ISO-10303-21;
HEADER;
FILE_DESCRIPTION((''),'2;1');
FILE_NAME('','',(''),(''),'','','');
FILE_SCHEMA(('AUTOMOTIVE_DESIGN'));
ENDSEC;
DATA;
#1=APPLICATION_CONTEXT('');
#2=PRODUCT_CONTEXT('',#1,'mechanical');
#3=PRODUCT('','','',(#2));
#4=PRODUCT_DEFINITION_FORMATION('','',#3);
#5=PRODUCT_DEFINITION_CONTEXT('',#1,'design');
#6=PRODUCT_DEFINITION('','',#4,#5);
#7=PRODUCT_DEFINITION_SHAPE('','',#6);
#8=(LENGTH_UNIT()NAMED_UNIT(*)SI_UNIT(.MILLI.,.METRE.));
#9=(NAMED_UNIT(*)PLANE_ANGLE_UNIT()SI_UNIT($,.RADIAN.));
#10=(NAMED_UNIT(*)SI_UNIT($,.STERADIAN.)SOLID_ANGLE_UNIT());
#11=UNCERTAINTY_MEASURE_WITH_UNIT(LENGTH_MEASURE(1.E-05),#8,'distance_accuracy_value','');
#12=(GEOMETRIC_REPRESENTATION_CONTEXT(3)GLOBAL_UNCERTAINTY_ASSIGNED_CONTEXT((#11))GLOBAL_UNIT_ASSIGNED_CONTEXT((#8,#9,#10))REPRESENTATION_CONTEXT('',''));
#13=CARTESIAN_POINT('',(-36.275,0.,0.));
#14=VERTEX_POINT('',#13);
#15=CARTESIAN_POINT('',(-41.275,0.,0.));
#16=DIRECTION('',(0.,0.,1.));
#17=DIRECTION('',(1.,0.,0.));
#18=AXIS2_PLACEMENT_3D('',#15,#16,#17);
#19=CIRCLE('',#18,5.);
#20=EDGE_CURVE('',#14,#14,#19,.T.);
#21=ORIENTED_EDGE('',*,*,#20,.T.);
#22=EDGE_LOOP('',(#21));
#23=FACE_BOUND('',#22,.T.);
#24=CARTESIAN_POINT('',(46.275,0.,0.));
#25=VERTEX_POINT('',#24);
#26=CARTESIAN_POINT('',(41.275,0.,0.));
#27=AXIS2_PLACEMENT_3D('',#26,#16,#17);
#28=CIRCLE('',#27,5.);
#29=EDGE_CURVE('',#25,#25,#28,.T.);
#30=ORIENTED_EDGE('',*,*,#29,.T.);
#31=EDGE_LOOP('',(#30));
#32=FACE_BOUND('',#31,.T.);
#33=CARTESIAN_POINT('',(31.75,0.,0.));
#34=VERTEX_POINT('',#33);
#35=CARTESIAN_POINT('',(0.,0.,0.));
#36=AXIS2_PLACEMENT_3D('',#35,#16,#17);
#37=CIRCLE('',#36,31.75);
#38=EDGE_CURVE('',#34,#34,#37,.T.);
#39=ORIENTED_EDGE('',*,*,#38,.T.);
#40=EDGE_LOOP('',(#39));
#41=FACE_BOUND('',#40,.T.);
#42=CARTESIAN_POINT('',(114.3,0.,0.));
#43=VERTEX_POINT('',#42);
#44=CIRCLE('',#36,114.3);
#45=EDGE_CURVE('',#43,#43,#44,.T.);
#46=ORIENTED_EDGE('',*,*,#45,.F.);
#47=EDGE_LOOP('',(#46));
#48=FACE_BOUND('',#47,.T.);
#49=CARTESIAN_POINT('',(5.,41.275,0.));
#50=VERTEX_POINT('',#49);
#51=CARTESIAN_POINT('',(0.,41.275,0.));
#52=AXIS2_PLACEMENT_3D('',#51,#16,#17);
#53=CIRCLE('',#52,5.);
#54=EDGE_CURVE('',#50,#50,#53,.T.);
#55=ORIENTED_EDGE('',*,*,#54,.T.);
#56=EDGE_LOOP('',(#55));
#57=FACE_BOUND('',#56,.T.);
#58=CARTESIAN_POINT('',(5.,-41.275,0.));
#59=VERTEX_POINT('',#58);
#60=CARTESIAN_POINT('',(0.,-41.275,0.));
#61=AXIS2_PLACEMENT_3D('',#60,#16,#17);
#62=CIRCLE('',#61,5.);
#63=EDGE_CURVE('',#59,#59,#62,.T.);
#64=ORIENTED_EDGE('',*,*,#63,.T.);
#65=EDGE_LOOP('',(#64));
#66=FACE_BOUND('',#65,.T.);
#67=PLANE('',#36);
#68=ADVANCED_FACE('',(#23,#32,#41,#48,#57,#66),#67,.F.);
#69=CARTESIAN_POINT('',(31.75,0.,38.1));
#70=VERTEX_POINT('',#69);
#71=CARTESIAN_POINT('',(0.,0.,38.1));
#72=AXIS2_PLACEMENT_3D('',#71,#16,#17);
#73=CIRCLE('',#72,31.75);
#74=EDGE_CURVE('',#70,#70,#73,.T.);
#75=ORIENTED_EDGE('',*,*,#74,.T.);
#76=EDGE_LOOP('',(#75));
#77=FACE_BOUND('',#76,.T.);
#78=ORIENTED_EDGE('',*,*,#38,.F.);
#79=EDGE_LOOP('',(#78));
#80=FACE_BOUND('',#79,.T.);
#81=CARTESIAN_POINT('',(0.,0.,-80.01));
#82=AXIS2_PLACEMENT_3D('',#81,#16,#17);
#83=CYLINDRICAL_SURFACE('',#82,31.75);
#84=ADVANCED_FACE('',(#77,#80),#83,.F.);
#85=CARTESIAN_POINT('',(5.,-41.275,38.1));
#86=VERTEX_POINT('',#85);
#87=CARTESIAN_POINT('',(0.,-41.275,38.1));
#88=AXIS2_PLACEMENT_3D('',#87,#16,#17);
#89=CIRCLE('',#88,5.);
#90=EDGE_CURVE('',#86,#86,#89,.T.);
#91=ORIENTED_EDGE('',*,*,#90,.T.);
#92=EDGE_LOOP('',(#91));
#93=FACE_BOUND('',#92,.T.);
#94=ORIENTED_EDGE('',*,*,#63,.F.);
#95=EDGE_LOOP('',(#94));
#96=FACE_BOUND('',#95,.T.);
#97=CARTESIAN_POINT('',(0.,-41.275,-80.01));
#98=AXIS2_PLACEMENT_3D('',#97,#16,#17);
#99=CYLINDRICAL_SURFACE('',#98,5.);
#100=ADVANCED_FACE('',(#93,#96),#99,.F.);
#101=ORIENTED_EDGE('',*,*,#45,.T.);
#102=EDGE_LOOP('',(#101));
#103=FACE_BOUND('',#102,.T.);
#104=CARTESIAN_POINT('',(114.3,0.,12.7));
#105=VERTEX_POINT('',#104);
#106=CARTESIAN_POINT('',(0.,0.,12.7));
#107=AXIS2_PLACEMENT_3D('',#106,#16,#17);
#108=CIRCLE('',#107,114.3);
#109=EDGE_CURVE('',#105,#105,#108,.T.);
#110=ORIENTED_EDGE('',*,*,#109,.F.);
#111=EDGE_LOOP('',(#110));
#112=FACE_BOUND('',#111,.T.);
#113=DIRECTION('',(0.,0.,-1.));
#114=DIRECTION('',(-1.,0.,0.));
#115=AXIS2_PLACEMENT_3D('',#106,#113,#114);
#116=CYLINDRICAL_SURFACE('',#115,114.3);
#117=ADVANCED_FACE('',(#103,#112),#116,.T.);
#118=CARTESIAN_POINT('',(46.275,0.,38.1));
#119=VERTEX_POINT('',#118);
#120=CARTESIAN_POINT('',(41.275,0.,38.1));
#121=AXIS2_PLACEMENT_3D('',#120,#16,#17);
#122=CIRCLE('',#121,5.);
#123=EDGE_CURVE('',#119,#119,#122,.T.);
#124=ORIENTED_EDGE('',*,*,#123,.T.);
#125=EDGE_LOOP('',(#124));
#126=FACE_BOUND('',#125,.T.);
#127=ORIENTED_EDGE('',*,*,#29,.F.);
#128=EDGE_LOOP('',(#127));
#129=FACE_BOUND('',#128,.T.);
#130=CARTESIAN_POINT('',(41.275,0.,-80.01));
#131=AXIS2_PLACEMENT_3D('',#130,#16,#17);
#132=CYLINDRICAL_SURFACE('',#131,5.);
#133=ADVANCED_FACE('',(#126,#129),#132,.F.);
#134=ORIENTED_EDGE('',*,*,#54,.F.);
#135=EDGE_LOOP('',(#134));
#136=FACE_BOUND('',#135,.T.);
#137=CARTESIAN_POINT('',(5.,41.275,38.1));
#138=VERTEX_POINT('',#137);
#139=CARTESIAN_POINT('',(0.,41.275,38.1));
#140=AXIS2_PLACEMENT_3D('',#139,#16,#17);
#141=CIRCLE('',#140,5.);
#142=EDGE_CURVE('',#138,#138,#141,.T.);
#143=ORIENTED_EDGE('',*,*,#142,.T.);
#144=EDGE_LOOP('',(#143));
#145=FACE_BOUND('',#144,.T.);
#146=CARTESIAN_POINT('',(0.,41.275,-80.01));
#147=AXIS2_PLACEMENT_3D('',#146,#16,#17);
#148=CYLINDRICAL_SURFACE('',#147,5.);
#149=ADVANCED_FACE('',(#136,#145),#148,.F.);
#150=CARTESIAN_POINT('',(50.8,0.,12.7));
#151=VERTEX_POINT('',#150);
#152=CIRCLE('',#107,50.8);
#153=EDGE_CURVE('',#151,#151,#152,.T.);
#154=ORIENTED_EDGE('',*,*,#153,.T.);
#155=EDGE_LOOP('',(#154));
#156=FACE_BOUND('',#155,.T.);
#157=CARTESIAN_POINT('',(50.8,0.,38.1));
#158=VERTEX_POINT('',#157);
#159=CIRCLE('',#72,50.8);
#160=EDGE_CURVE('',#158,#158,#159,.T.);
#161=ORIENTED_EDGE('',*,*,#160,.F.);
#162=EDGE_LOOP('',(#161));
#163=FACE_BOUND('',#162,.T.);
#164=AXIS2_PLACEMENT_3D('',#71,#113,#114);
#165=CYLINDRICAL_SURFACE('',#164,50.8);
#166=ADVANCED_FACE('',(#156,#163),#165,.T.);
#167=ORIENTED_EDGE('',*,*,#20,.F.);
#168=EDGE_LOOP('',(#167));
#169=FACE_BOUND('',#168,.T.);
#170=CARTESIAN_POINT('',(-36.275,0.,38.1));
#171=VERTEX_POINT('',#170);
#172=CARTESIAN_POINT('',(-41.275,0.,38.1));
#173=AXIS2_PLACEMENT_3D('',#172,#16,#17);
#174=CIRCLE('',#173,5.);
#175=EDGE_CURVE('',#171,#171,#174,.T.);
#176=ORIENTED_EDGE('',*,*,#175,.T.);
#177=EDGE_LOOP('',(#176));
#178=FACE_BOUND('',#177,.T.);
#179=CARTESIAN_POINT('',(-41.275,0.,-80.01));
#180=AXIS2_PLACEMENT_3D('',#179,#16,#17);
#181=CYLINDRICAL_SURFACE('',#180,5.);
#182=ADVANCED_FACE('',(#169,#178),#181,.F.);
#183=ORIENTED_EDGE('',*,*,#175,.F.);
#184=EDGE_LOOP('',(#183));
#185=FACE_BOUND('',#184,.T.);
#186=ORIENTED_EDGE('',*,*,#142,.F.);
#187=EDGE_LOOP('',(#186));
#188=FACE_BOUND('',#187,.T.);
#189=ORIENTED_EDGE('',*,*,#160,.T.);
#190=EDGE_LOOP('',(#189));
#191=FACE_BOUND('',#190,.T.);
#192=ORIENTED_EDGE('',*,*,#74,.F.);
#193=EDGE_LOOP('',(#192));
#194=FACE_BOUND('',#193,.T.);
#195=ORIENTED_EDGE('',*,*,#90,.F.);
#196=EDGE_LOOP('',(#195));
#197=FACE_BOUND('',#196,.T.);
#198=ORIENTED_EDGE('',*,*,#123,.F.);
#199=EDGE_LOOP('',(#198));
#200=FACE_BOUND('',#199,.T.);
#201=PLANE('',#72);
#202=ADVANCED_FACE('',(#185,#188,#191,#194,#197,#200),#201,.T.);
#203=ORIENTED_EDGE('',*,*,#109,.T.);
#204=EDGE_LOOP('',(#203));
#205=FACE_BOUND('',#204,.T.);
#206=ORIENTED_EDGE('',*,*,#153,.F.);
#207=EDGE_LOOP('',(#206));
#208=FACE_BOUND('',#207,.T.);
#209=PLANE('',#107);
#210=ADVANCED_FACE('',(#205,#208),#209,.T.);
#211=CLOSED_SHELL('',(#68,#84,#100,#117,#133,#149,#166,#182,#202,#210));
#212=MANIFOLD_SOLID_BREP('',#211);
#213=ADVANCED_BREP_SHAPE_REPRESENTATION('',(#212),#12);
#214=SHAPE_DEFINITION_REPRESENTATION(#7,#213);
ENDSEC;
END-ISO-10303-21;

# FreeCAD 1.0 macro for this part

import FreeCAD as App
import Part
import Sketcher
Q = App.Units.Quantity

doc = App.newDocument("Part")
params = doc.addObject("Spreadsheet::Sheet", "Params")
for row, (alias, value) in enumerate([
    ("sketch1_diameter", "9 in"),
    ("pad1_length", "0.5 in"),
    ("sketch2_diameter", "4 in"),
    ("pad2_length", "1 in"),
    ("sketch3_diameter", "2.5 in"),
    ("pocket1_length", "4.65 in"),
    ("pocket2_length", "4.65 in"),
], start=1):
    params.set(f"A{row}", alias)
    params.set(f"B{row}", "=" + value)
    params.setAlias(f"B{row}", alias)

body = doc.addObject("PartDesign::Body", "Body")

sketch1 = body.newObject("Sketcher::SketchObject", "Sketch")
sketch1.AttachmentSupport = (doc.getObject("XY_Plane"), [""])
sketch1.MapMode = "FlatFace"
sketch1.addGeometry(Part.Circle(App.Vector(0, 0, 0), App.Vector(0, 0, 1), 114), False)
sketch1.addConstraint(Sketcher.Constraint("Coincident", 0, 3, -1, 1))
sketch1.addConstraint(Sketcher.Constraint("Diameter", 0, Q("9 in")))
sketch1.setExpression("Constraints[1]", "Params.sketch1_diameter")
pad1 = body.newObject("PartDesign::Pad", "Pad")
pad1.Profile = sketch1
pad1.setExpression("Length", "Params.pad1_length")

sketch2 = body.newObject("Sketcher::SketchObject", "Sketch001")
sketch2.AttachmentSupport = (doc.getObject("XY_Plane"), [""])
sketch2.MapMode = "FlatFace"
sketch2.AttachmentOffset = App.Placement(App.Vector(0, 0, 0.5 * 25.4), App.Rotation())
sketch2.addGeometry(Part.Circle(App.Vector(0, 0, 0), App.Vector(0, 0, 1), 51), False)
sketch2.addConstraint(Sketcher.Constraint("Coincident", 0, 3, -1, 1))
sketch2.addConstraint(Sketcher.Constraint("Diameter", 0, Q("4 in")))
sketch2.setExpression("Constraints[1]", "Params.sketch2_diameter")
pad2 = body.newObject("PartDesign::Pad", "Pad001")
pad2.Profile = sketch2
pad2.setExpression("Length", "Params.pad2_length")

sketch3 = body.newObject("Sketcher::SketchObject", "Sketch002")
sketch3.AttachmentSupport = (doc.getObject("XY_Plane"), [""])
sketch3.MapMode = "FlatFace"
sketch3.AttachmentOffset = App.Placement(App.Vector(0, 0, 1.5 * 25.4), App.Rotation())
sketch3.addGeometry(Part.Circle(App.Vector(0, 0, 0), App.Vector(0, 0, 1), 32), False)
sketch3.addConstraint(Sketcher.Constraint("Coincident", 0, 3, -1, 1))
sketch3.addConstraint(Sketcher.Constraint("Diameter", 0, Q("2.5 in")))
sketch3.setExpression("Constraints[1]", "Params.sketch3_diameter")
pocket1 = body.newObject("PartDesign::Pocket", "Pocket")
pocket1.Profile = sketch3
pocket1.setExpression("Length", "Params.pocket1_length")

sketch4 = body.newObject("Sketcher::SketchObject", "Sketch003")
sketch4.AttachmentSupport = (doc.getObject("XY_Plane"), [""])
sketch4.MapMode = "FlatFace"
sketch4.AttachmentOffset = App.Placement(App.Vector(0, 0, 1.5 * 25.4), App.Rotation())
sketch4.addGeometry(Part.Circle(App.Vector(0, 41, 0), App.Vector(0, 0, 1), 5), False)
sketch4.addGeometry(Part.Circle(App.Vector(41, 0, 0), App.Vector(0, 0, 1), 5), False)
sketch4.addGeometry(Part.Circle(App.Vector(0, -41, 0), App.Vector(0, 0, 1), 5), False)
sketch4.addGeometry(Part.Circle(App.Vector(-41, 0, 0), App.Vector(0, 0, 1), 5), False)
sketch4.addConstraint(Sketcher.Constraint("Equal", 0, 1))
sketch4.addConstraint(Sketcher.Constraint("Equal", 1, 2))
sketch4.addConstraint(Sketcher.Constraint("Equal", 2, 3))
sketch4.addConstraint(Sketcher.Constraint("Symmetric", 0, 3, 2, 3, -1, 1))
sketch4.addConstraint(Sketcher.Constraint("Symmetric", 1, 3, 3, 3, -1, 1))
sketch4.addConstraint(Sketcher.Constraint("PointOnObject", 0, 3, -2))
sketch4.addConstraint(Sketcher.Constraint("PointOnObject", 1, 3, -1))
sketch4.addConstraint(Sketcher.Constraint("Diameter", 0, Q("10 mm")))
sketch4.addConstraint(Sketcher.Constraint("DistanceY", 2, 3, 0, 3, Q("3.25 in")))
sketch4.addConstraint(Sketcher.Constraint("DistanceX", 3, 3, 1, 3, Q("3.25 in")))
pocket2 = body.newObject("PartDesign::Pocket", "Pocket001")
pocket2.Profile = sketch4
pocket2.setExpression("Length", "Params.pocket2_length")

doc.recompute()
